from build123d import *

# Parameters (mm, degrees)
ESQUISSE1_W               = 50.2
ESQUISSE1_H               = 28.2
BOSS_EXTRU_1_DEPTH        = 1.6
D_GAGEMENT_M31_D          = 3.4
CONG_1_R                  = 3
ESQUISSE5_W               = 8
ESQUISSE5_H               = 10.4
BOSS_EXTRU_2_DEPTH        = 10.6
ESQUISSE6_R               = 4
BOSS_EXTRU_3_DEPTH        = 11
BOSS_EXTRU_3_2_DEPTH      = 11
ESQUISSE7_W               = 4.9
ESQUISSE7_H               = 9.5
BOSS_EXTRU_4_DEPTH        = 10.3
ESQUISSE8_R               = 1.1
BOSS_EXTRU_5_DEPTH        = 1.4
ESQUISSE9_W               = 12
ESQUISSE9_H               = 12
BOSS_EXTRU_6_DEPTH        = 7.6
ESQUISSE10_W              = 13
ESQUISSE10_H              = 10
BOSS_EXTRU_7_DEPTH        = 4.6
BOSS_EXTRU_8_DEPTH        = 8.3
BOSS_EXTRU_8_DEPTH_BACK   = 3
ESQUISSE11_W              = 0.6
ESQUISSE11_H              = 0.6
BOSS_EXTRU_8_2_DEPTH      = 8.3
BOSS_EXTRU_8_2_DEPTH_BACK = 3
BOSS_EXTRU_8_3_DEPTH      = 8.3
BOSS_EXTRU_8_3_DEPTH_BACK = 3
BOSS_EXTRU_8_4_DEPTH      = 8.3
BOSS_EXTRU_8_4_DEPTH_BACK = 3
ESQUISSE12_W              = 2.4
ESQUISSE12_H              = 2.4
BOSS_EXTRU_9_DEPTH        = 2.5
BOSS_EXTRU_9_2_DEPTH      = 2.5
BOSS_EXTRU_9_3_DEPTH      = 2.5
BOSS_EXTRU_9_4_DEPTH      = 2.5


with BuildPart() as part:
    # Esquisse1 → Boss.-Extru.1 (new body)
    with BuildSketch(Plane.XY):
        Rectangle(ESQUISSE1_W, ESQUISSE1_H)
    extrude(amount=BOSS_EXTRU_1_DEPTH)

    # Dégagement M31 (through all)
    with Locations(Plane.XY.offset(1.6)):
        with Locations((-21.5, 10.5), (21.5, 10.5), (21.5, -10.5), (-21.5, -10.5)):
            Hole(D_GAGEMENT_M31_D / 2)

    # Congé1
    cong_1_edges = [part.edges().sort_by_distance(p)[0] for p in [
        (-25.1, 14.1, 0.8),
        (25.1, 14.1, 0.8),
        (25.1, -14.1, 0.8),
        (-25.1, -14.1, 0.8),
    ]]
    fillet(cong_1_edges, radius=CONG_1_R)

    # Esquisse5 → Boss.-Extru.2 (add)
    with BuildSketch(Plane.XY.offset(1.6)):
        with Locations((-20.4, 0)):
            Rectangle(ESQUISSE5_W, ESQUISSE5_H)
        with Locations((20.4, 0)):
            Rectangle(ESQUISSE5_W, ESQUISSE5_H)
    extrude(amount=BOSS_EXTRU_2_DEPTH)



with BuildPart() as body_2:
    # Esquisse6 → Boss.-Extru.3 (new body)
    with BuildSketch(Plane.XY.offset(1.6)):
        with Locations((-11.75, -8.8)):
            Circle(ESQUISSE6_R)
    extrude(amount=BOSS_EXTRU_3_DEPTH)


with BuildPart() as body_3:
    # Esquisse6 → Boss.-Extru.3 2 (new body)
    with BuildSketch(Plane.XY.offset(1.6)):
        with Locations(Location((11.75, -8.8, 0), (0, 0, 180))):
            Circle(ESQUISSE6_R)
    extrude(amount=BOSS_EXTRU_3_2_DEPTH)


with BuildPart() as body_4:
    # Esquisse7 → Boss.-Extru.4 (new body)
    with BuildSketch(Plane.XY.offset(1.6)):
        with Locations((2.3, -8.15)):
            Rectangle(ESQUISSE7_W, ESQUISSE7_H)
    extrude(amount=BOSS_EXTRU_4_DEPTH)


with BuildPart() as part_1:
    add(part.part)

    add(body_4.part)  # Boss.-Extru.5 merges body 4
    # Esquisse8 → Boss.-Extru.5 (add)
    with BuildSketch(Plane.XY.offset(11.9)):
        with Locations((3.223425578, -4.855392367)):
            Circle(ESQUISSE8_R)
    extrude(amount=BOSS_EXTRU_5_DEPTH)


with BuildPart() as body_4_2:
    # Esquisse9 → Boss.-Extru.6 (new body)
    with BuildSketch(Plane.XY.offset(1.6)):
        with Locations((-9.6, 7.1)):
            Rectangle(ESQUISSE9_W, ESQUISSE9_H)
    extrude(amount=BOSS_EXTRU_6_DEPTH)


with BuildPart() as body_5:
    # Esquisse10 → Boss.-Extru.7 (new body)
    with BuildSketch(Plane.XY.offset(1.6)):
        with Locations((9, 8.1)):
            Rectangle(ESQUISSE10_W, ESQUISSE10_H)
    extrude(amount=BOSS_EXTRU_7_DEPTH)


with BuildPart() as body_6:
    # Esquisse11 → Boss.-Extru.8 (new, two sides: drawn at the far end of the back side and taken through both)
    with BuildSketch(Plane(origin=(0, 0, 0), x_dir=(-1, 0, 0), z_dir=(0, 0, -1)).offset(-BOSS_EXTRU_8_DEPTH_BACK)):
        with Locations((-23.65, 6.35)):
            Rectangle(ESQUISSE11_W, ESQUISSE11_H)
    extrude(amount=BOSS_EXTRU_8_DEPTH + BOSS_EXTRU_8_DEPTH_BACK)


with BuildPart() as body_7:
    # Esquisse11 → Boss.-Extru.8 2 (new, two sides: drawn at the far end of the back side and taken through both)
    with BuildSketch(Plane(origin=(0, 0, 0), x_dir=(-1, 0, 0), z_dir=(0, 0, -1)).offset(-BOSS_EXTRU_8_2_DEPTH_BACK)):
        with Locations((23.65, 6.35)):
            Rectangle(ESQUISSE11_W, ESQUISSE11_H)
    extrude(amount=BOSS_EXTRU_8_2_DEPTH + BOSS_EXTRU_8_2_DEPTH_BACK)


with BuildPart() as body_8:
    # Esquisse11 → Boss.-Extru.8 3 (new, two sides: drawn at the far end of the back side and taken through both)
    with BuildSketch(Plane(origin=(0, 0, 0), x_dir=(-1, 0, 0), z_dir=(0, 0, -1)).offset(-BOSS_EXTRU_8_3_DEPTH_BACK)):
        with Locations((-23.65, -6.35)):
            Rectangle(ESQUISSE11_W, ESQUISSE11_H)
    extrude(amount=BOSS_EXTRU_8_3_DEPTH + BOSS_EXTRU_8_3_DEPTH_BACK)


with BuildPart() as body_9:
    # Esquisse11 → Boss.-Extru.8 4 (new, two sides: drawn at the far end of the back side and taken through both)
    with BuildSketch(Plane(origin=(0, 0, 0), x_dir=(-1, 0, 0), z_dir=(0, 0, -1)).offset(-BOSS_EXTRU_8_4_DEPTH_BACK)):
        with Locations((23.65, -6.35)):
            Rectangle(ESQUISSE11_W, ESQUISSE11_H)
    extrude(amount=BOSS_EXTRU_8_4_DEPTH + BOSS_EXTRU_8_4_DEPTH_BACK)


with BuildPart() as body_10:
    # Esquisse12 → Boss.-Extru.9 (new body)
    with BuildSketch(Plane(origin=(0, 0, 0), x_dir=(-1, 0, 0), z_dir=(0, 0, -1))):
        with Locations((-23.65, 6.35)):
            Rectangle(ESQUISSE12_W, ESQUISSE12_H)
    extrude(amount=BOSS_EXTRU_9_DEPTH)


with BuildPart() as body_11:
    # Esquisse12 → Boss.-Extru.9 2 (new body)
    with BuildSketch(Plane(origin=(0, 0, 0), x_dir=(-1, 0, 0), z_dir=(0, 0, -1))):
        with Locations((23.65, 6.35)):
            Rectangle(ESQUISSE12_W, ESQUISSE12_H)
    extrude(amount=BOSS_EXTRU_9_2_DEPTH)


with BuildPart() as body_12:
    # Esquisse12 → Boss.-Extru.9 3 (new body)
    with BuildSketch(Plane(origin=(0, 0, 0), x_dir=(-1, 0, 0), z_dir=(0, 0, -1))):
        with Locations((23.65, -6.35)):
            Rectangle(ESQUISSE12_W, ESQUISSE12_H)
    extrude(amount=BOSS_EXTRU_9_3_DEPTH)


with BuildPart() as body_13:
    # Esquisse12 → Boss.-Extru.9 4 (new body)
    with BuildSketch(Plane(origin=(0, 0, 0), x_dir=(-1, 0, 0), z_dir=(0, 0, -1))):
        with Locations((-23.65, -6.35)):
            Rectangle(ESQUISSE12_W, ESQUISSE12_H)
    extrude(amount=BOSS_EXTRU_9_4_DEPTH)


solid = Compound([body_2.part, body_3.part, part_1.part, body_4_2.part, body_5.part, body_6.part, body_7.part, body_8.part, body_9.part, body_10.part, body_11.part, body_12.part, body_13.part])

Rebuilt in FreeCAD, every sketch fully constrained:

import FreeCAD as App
import Part
import Sketcher


def edges_at(feature, points):
    """Names of the edges that pass closest to the given points."""
    edges = feature.Shape.Edges
    near = lambda p: min(range(len(edges)), key=lambda i: edges[i].distToShape(Part.Vertex(*p))[0])
    return sorted({f"Edge{near(p) + 1}" for p in points})


def add_polygon(sketch, points):
    """Adds a closed chain of lines whose ends are joined by coincident constraints."""
    first, n = sketch.GeometryCount, len(points)
    for a, b in zip(points, points[1:] + points[:1]):
        sketch.addGeometry(Part.LineSegment(App.Vector(*a, 0), App.Vector(*b, 0)), False)
    for i in range(n):
        sketch.addConstraint(Sketcher.Constraint("Coincident", first + i, 2, first + (i + 1) % n, 1))

doc = App.newDocument("Part")
body = doc.addObject("PartDesign::Body", "Body")

sketch1 = doc.addObject("Sketcher::SketchObject", "Sketch")
body.addObject(sketch1)
sketch1.AttachmentSupport = (doc.XY_Plane, [""])
sketch1.MapMode = "FlatFace"
add_polygon(sketch1, [(-25, 14), (-25, -14), (25, -14), (25, 14)])
sketch1.addConstraint(Sketcher.Constraint("Vertical", 0))
sketch1.addConstraint(Sketcher.Constraint("Horizontal", 1))
sketch1.addConstraint(Sketcher.Constraint("Vertical", 2))
sketch1.addConstraint(Sketcher.Constraint("Horizontal", 3))
sketch1.addConstraint(Sketcher.Constraint("Symmetric", 0, 2, 2, 2, -1, 1))
sketch1.addConstraint(Sketcher.Constraint("DistanceX", 1, 1, 1, 2, 50.2))
sketch1.addConstraint(Sketcher.Constraint("DistanceY", 0, 2, 0, 1, 28.2))
pad1 = doc.addObject("PartDesign::Pad", "Pad")
body.addObject(pad1)
pad1.Profile = sketch1
pad1.Length = 1.6

sketch2 = doc.addObject("Sketcher::SketchObject", "Sketch001")
body.addObject(sketch2)
sketch2.AttachmentSupport = (doc.XY_Plane, [""])
sketch2.MapMode = "FlatFace"
sketch2.AttachmentOffset = App.Placement(App.Vector(0, 0, 1.6), App.Rotation())
sketch2.addGeometry(Part.Circle(App.Vector(-21.5, 10.5, 0), App.Vector(0, 0, 1), 1.7), False)
sketch2.addGeometry(Part.Circle(App.Vector(21.5, 10.5, 0), App.Vector(0, 0, 1), 1.7), False)
sketch2.addGeometry(Part.Circle(App.Vector(21.5, -10.5, 0), App.Vector(0, 0, 1), 1.7), False)
sketch2.addGeometry(Part.Circle(App.Vector(-21.5, -10.5, 0), App.Vector(0, 0, 1), 1.7), False)
sketch2.addConstraint(Sketcher.Constraint("Equal", 0, 1))
sketch2.addConstraint(Sketcher.Constraint("Equal", 1, 2))
sketch2.addConstraint(Sketcher.Constraint("Equal", 2, 3))
sketch2.addConstraint(Sketcher.Constraint("Symmetric", 0, 3, 2, 3, -1, 1))
sketch2.addConstraint(Sketcher.Constraint("Symmetric", 1, 3, 3, 3, -1, 1))
sketch2.addConstraint(Sketcher.Constraint("Symmetric", 0, 3, 1, 3, -2))
sketch2.addConstraint(Sketcher.Constraint("Diameter", 0, 3.4))
sketch2.addConstraint(Sketcher.Constraint("DistanceX", 0, 3, 1, 3, 43.0))
sketch2.addConstraint(Sketcher.Constraint("DistanceY", 2, 3, 1, 3, 21.0))
doc.recompute()
hole = doc.addObject("PartDesign::Hole", "Hole")
body.addObject(hole)
hole.Profile = sketch2
hole.ThreadType = "None"
hole.Diameter = 3.4
hole.DepthType = "ThroughAll"
doc.recompute()

fillet = doc.addObject("PartDesign::Fillet", "Fillet")
body.addObject(fillet)
fillet.Base = (hole, edges_at(hole, [
    (-25.1, 14.1, 0.8),
    (25.1, 14.1, 0.8),
    (25.1, -14.1, 0.8),
    (-25.1, -14.1, 0.8),
]))
fillet.Radius = 3

sketch3 = doc.addObject("Sketcher::SketchObject", "Sketch002")
body.addObject(sketch3)
sketch3.AttachmentSupport = (doc.XY_Plane, [""])
sketch3.MapMode = "FlatFace"
sketch3.AttachmentOffset = App.Placement(App.Vector(0, 0, 1.6), App.Rotation())
add_polygon(sketch3, [(-24, 5), (-24, -5), (-16, -5), (-16, 5)])
add_polygon(sketch3, [(16, 5), (16, -5), (24, -5), (24, 5)])
sketch3.addConstraint(Sketcher.Constraint("Vertical", 0))
sketch3.addConstraint(Sketcher.Constraint("Horizontal", 1))
sketch3.addConstraint(Sketcher.Constraint("Vertical", 2))
sketch3.addConstraint(Sketcher.Constraint("Horizontal", 3))
sketch3.addConstraint(Sketcher.Constraint("Vertical", 4))
sketch3.addConstraint(Sketcher.Constraint("Horizontal", 5))
sketch3.addConstraint(Sketcher.Constraint("Vertical", 6))
sketch3.addConstraint(Sketcher.Constraint("Horizontal", 7))
sketch3.addConstraint(Sketcher.Constraint("Symmetric", 2, 2, 4, 2, -1, 1))
sketch3.addConstraint(Sketcher.Constraint("Symmetric", 0, 2, 6, 2, -1, 1))
sketch3.addConstraint(Sketcher.Constraint("Horizontal", 1, 2, 4, 2))
sketch3.addConstraint(Sketcher.Constraint("DistanceX", 1, 1, 1, 2, 8.0))
sketch3.addConstraint(Sketcher.Constraint("DistanceY", 0, 2, 0, 1, 10.4))
sketch3.addConstraint(Sketcher.Constraint("DistanceX", 0, 2, -1, 1, 24.4))
pad2 = doc.addObject("PartDesign::Pad", "Pad001")
body.addObject(pad2)
pad2.Profile = sketch3
pad2.Length = 10.6
body2 = doc.addObject("PartDesign::Body", "Body001")

sketch4 = doc.addObject("Sketcher::SketchObject", "Sketch003")
body2.addObject(sketch4)
sketch4.AttachmentSupport = (doc.getObject("XY_Plane001"), [""])
sketch4.MapMode = "FlatFace"
sketch4.AttachmentOffset = App.Placement(App.Vector(0, 0, 1.6), App.Rotation())
sketch4.addGeometry(Part.Circle(App.Vector(-11.8, -8.8, 0), App.Vector(0, 0, 1), 4), False)
sketch4.addConstraint(Sketcher.Constraint("Diameter", 0, 8.0))
sketch4.addConstraint(Sketcher.Constraint("DistanceY", 0, 3, -1, 1, 8.8))
sketch4.addConstraint(Sketcher.Constraint("DistanceX", 0, 3, -1, 1, 11.75))
pad3 = doc.addObject("PartDesign::Pad", "Pad002")
body2.addObject(pad3)
pad3.Profile = sketch4
pad3.Length = 11
body3 = doc.addObject("PartDesign::Body", "Body002")

sketch5 = doc.addObject("Sketcher::SketchObject", "Sketch004")
body3.addObject(sketch5)
sketch5.AttachmentSupport = (doc.getObject("XY_Plane002"), [""])
sketch5.MapMode = "FlatFace"
sketch5.AttachmentOffset = App.Placement(App.Vector(0, 0, 1.6), App.Rotation())
sketch5.addGeometry(Part.Circle(App.Vector(11.8, -8.8, 0), App.Vector(0, 0, 1), 4), False)
sketch5.addConstraint(Sketcher.Constraint("Diameter", 0, 8.0))
sketch5.addConstraint(Sketcher.Constraint("DistanceY", 0, 3, -1, 1, 8.8))
sketch5.addConstraint(Sketcher.Constraint("DistanceX", -1, 1, 0, 3, 11.75))
pad4 = doc.addObject("PartDesign::Pad", "Pad003")
body3.addObject(pad4)
pad4.Profile = sketch5
pad4.Length = 11
body4 = doc.addObject("PartDesign::Body", "Body003")

sketch6 = doc.addObject("Sketcher::SketchObject", "Sketch005")
body4.addObject(sketch6)
sketch6.AttachmentSupport = (doc.getObject("XY_Plane003"), [""])
sketch6.MapMode = "FlatFace"
sketch6.AttachmentOffset = App.Placement(App.Vector(0, 0, 1.6), App.Rotation())
add_polygon(sketch6, [(-0.1, -3.4), (-0.1, -12.9), (4.8, -12.9), (4.8, -3.4)])
sketch6.addConstraint(Sketcher.Constraint("Vertical", 0))
sketch6.addConstraint(Sketcher.Constraint("Horizontal", 1))
sketch6.addConstraint(Sketcher.Constraint("Vertical", 2))
sketch6.addConstraint(Sketcher.Constraint("Horizontal", 3))
sketch6.addConstraint(Sketcher.Constraint("DistanceX", 1, 1, 1, 2, 4.9))
sketch6.addConstraint(Sketcher.Constraint("DistanceY", 0, 2, 0, 1, 9.5))
sketch6.addConstraint(Sketcher.Constraint("DistanceY", 0, 2, -1, 1, 12.9))
sketch6.addConstraint(Sketcher.Constraint("DistanceX", 0, 2, -1, 1, 0.15))
pad5 = doc.addObject("PartDesign::Pad", "Pad004")
body4.addObject(pad5)
pad5.Profile = sketch6
pad5.Length = 10.3
doc.recompute()

boolean = doc.addObject("PartDesign::Boolean", "Boolean")
body.addObject(boolean)
boolean.Type = "Fuse"
boolean.addObjects([body4])

sketch7 = doc.addObject("Sketcher::SketchObject", "Sketch006")
body.addObject(sketch7)
sketch7.AttachmentSupport = (doc.XY_Plane, [""])
sketch7.MapMode = "FlatFace"
sketch7.AttachmentOffset = App.Placement(App.Vector(0, 0, 11.9), App.Rotation())
sketch7.addGeometry(Part.Circle(App.Vector(3.2, -4.9, 0), App.Vector(0, 0, 1), 1.1), False)
sketch7.addConstraint(Sketcher.Constraint("Diameter", 0, 2.2))
sketch7.addConstraint(Sketcher.Constraint("DistanceX", -1, 1, 0, 3, 3.223426))
sketch7.addConstraint(Sketcher.Constraint("DistanceY", 0, 3, -1, 1, 4.855392))
pad6 = doc.addObject("PartDesign::Pad", "Pad005")
body.addObject(pad6)
pad6.Profile = sketch7
pad6.Length = 1.4
body5 = doc.addObject("PartDesign::Body", "Body004")

sketch8 = doc.addObject("Sketcher::SketchObject", "Sketch007")
body5.addObject(sketch8)
sketch8.AttachmentSupport = (doc.getObject("XY_Plane004"), [""])
sketch8.MapMode = "FlatFace"
sketch8.AttachmentOffset = App.Placement(App.Vector(0, 0, 1.6), App.Rotation())
add_polygon(sketch8, [(-16, 13), (-16, 1), (-4, 1), (-4, 13)])
sketch8.addConstraint(Sketcher.Constraint("Vertical", 0))
sketch8.addConstraint(Sketcher.Constraint("Horizontal", 1))
sketch8.addConstraint(Sketcher.Constraint("Vertical", 2))
sketch8.addConstraint(Sketcher.Constraint("Horizontal", 3))
sketch8.addConstraint(Sketcher.Constraint("Equal", 3, 0))
sketch8.addConstraint(Sketcher.Constraint("DistanceX", 1, 1, 1, 2, 12.0))
sketch8.addConstraint(Sketcher.Constraint("DistanceX", 0, 2, -1, 1, 15.6))
sketch8.addConstraint(Sketcher.Constraint("DistanceY", -1, 1, 0, 2, 1.1))
pad7 = doc.addObject("PartDesign::Pad", "Pad006")
body5.addObject(pad7)
pad7.Profile = sketch8
pad7.Length = 7.6
body6 = doc.addObject("PartDesign::Body", "Body005")

sketch9 = doc.addObject("Sketcher::SketchObject", "Sketch008")
body6.addObject(sketch9)
sketch9.AttachmentSupport = (doc.getObject("XY_Plane005"), [""])
sketch9.MapMode = "FlatFace"
sketch9.AttachmentOffset = App.Placement(App.Vector(0, 0, 1.6), App.Rotation())
add_polygon(sketch9, [(2, 13), (2, 3), (16, 3), (16, 13)])
sketch9.addConstraint(Sketcher.Constraint("Vertical", 0))
sketch9.addConstraint(Sketcher.Constraint("Horizontal", 1))
sketch9.addConstraint(Sketcher.Constraint("Vertical", 2))
sketch9.addConstraint(Sketcher.Constraint("Horizontal", 3))
sketch9.addConstraint(Sketcher.Constraint("DistanceX", 1, 1, 1, 2, 13.0))
sketch9.addConstraint(Sketcher.Constraint("DistanceY", 0, 2, 0, 1, 10.0))
sketch9.addConstraint(Sketcher.Constraint("DistanceX", -1, 1, 0, 2, 2.5))
sketch9.addConstraint(Sketcher.Constraint("DistanceY", -1, 1, 0, 2, 3.1))
pad8 = doc.addObject("PartDesign::Pad", "Pad007")
body6.addObject(pad8)
pad8.Profile = sketch9
pad8.Length = 4.6
body7 = doc.addObject("PartDesign::Body", "Body006")

sketch10 = doc.addObject("Sketcher::SketchObject", "Sketch009")
body7.addObject(sketch10)
sketch10.AttachmentSupport = (doc.getObject("XY_Plane006"), [""])
sketch10.MapMode = "FlatFace"
add_polygon(sketch10, [(23.9, 6.7), (23.9, 6), (23.4, 6), (23.4, 6.7)])
sketch10.addConstraint(Sketcher.Constraint("Vertical", 0))
sketch10.addConstraint(Sketcher.Constraint("Horizontal", 1))
sketch10.addConstraint(Sketcher.Constraint("Vertical", 2))
sketch10.addConstraint(Sketcher.Constraint("Horizontal", 3))
sketch10.addConstraint(Sketcher.Constraint("Equal", 3, 0))
sketch10.addConstraint(Sketcher.Constraint("DistanceX", 1, 2, 1, 1, 0.6))
sketch10.addConstraint(Sketcher.Constraint("DistanceX", -1, 1, 0, 2, 23.95))
sketch10.addConstraint(Sketcher.Constraint("DistanceY", -1, 1, 0, 2, 6.05))
pad9 = doc.addObject("PartDesign::Pad", "Pad008")
body7.addObject(pad9)
pad9.Profile = sketch10
pad9.Type = "TwoLengths"
pad9.Length = 8.3
pad9.Length2 = 3
pad9.Reversed = True
body8 = doc.addObject("PartDesign::Body", "Body007")

sketch11 = doc.addObject("Sketcher::SketchObject", "Sketch010")
body8.addObject(sketch11)
sketch11.AttachmentSupport = (doc.getObject("XY_Plane007"), [""])
sketch11.MapMode = "FlatFace"
add_polygon(sketch11, [(-23.4, 6.7), (-23.4, 6), (-23.9, 6), (-23.9, 6.7)])
sketch11.addConstraint(Sketcher.Constraint("Vertical", 0))
sketch11.addConstraint(Sketcher.Constraint("Horizontal", 1))
sketch11.addConstraint(Sketcher.Constraint("Vertical", 2))
sketch11.addConstraint(Sketcher.Constraint("Horizontal", 3))
sketch11.addConstraint(Sketcher.Constraint("Equal", 3, 0))
sketch11.addConstraint(Sketcher.Constraint("DistanceX", 1, 2, 1, 1, 0.6))
sketch11.addConstraint(Sketcher.Constraint("DistanceX", 0, 2, -1, 1, 23.35))
sketch11.addConstraint(Sketcher.Constraint("DistanceY", -1, 1, 0, 2, 6.05))
pad10 = doc.addObject("PartDesign::Pad", "Pad009")
body8.addObject(pad10)
pad10.Profile = sketch11
pad10.Type = "TwoLengths"
pad10.Length = 8.3
pad10.Length2 = 3
pad10.Reversed = True
body9 = doc.addObject("PartDesign::Body", "Body008")

sketch12 = doc.addObject("Sketcher::SketchObject", "Sketch011")
body9.addObject(sketch12)
sketch12.AttachmentSupport = (doc.getObject("XY_Plane008"), [""])
sketch12.MapMode = "FlatFace"
add_polygon(sketch12, [(23.9, -6), (23.9, -6.7), (23.4, -6.7), (23.4, -6)])
sketch12.addConstraint(Sketcher.Constraint("Vertical", 0))
sketch12.addConstraint(Sketcher.Constraint("Horizontal", 1))
sketch12.addConstraint(Sketcher.Constraint("Vertical", 2))
sketch12.addConstraint(Sketcher.Constraint("Horizontal", 3))
sketch12.addConstraint(Sketcher.Constraint("Equal", 3, 0))
sketch12.addConstraint(Sketcher.Constraint("DistanceX", 1, 2, 1, 1, 0.6))
sketch12.addConstraint(Sketcher.Constraint("DistanceX", -1, 1, 0, 2, 23.95))
sketch12.addConstraint(Sketcher.Constraint("DistanceY", 0, 2, -1, 1, 6.65))
pad11 = doc.addObject("PartDesign::Pad", "Pad010")
body9.addObject(pad11)
pad11.Profile = sketch12
pad11.Type = "TwoLengths"
pad11.Length = 8.3
pad11.Length2 = 3
pad11.Reversed = True
body10 = doc.addObject("PartDesign::Body", "Body009")

sketch13 = doc.addObject("Sketcher::SketchObject", "Sketch012")
body10.addObject(sketch13)
sketch13.AttachmentSupport = (doc.getObject("XY_Plane009"), [""])
sketch13.MapMode = "FlatFace"
add_polygon(sketch13, [(-23.4, -6), (-23.4, -6.7), (-23.9, -6.7), (-23.9, -6)])
sketch13.addConstraint(Sketcher.Constraint("Vertical", 0))
sketch13.addConstraint(Sketcher.Constraint("Horizontal", 1))
sketch13.addConstraint(Sketcher.Constraint("Vertical", 2))
sketch13.addConstraint(Sketcher.Constraint("Horizontal", 3))
sketch13.addConstraint(Sketcher.Constraint("Equal", 3, 0))
sketch13.addConstraint(Sketcher.Constraint("DistanceX", 1, 2, 1, 1, 0.6))
sketch13.addConstraint(Sketcher.Constraint("DistanceX", 0, 2, -1, 1, 23.35))
sketch13.addConstraint(Sketcher.Constraint("DistanceY", 0, 2, -1, 1, 6.65))
pad12 = doc.addObject("PartDesign::Pad", "Pad011")
body10.addObject(pad12)
pad12.Profile = sketch13
pad12.Type = "TwoLengths"
pad12.Length = 8.3
pad12.Length2 = 3
pad12.Reversed = True
body11 = doc.addObject("PartDesign::Body", "Body010")

sketch14 = doc.addObject("Sketcher::SketchObject", "Sketch013")
body11.addObject(sketch14)
sketch14.AttachmentSupport = (doc.getObject("XY_Plane010"), [""])
sketch14.MapMode = "FlatFace"
add_polygon(sketch14, [(24.9, 7.5), (24.9, 5.2), (22.4, 5.2), (22.4, 7.5)])
sketch14.addConstraint(Sketcher.Constraint("Vertical", 0))
sketch14.addConstraint(Sketcher.Constraint("Horizontal", 1))
sketch14.addConstraint(Sketcher.Constraint("Vertical", 2))
sketch14.addConstraint(Sketcher.Constraint("Horizontal", 3))
sketch14.addConstraint(Sketcher.Constraint("Equal", 3, 0))
sketch14.addConstraint(Sketcher.Constraint("DistanceX", 1, 2, 1, 1, 2.4))
sketch14.addConstraint(Sketcher.Constraint("DistanceX", -1, 1, 0, 2, 24.85))
sketch14.addConstraint(Sketcher.Constraint("DistanceY", -1, 1, 0, 2, 5.15))
pad13 = doc.addObject("PartDesign::Pad", "Pad012")
body11.addObject(pad13)
pad13.Profile = sketch14
pad13.Length = 2.5
pad13.Reversed = True
body12 = doc.addObject("PartDesign::Body", "Body011")

sketch15 = doc.addObject("Sketcher::SketchObject", "Sketch014")
body12.addObject(sketch15)
sketch15.AttachmentSupport = (doc.getObject("XY_Plane011"), [""])
sketch15.MapMode = "FlatFace"
add_polygon(sketch15, [(-22.4, 7.5), (-22.4, 5.2), (-24.9, 5.2), (-24.9, 7.5)])
sketch15.addConstraint(Sketcher.Constraint("Vertical", 0))
sketch15.addConstraint(Sketcher.Constraint("Horizontal", 1))
sketch15.addConstraint(Sketcher.Constraint("Vertical", 2))
sketch15.addConstraint(Sketcher.Constraint("Horizontal", 3))
sketch15.addConstraint(Sketcher.Constraint("Equal", 3, 0))
sketch15.addConstraint(Sketcher.Constraint("DistanceX", 1, 2, 1, 1, 2.4))
sketch15.addConstraint(Sketcher.Constraint("DistanceX", 0, 2, -1, 1, 22.45))
sketch15.addConstraint(Sketcher.Constraint("DistanceY", -1, 1, 0, 2, 5.15))
pad14 = doc.addObject("PartDesign::Pad", "Pad013")
body12.addObject(pad14)
pad14.Profile = sketch15
pad14.Length = 2.5
pad14.Reversed = True
body13 = doc.addObject("PartDesign::Body", "Body012")

sketch16 = doc.addObject("Sketcher::SketchObject", "Sketch015")
body13.addObject(sketch16)
sketch16.AttachmentSupport = (doc.getObject("XY_Plane012"), [""])
sketch16.MapMode = "FlatFace"
add_polygon(sketch16, [(-22.4, -5.2), (-22.4, -7.5), (-24.9, -7.5), (-24.9, -5.2)])
sketch16.addConstraint(Sketcher.Constraint("Vertical", 0))
sketch16.addConstraint(Sketcher.Constraint("Horizontal", 1))
sketch16.addConstraint(Sketcher.Constraint("Vertical", 2))
sketch16.addConstraint(Sketcher.Constraint("Horizontal", 3))
sketch16.addConstraint(Sketcher.Constraint("Equal", 3, 0))
sketch16.addConstraint(Sketcher.Constraint("DistanceX", 1, 2, 1, 1, 2.4))
sketch16.addConstraint(Sketcher.Constraint("DistanceX", 0, 2, -1, 1, 22.45))
sketch16.addConstraint(Sketcher.Constraint("DistanceY", 0, 2, -1, 1, 7.55))
pad15 = doc.addObject("PartDesign::Pad", "Pad014")
body13.addObject(pad15)
pad15.Profile = sketch16
pad15.Length = 2.5
pad15.Reversed = True
body14 = doc.addObject("PartDesign::Body", "Body013")

sketch17 = doc.addObject("Sketcher::SketchObject", "Sketch016")
body14.addObject(sketch17)
sketch17.AttachmentSupport = (doc.getObject("XY_Plane013"), [""])
sketch17.MapMode = "FlatFace"
add_polygon(sketch17, [(24.9, -5.2), (24.9, -7.5), (22.4, -7.5), (22.4, -5.2)])
sketch17.addConstraint(Sketcher.Constraint("Vertical", 0))
sketch17.addConstraint(Sketcher.Constraint("Horizontal", 1))
sketch17.addConstraint(Sketcher.Constraint("Vertical", 2))
sketch17.addConstraint(Sketcher.Constraint("Horizontal", 3))
sketch17.addConstraint(Sketcher.Constraint("Equal", 3, 0))
sketch17.addConstraint(Sketcher.Constraint("DistanceX", 1, 2, 1, 1, 2.4))
sketch17.addConstraint(Sketcher.Constraint("DistanceX", -1, 1, 0, 2, 24.85))
sketch17.addConstraint(Sketcher.Constraint("DistanceY", 0, 2, -1, 1, 7.55))
pad16 = doc.addObject("PartDesign::Pad", "Pad015")
body14.addObject(pad16)
pad16.Profile = sketch17
pad16.Length = 2.5
pad16.Reversed = True

doc.recompute()
